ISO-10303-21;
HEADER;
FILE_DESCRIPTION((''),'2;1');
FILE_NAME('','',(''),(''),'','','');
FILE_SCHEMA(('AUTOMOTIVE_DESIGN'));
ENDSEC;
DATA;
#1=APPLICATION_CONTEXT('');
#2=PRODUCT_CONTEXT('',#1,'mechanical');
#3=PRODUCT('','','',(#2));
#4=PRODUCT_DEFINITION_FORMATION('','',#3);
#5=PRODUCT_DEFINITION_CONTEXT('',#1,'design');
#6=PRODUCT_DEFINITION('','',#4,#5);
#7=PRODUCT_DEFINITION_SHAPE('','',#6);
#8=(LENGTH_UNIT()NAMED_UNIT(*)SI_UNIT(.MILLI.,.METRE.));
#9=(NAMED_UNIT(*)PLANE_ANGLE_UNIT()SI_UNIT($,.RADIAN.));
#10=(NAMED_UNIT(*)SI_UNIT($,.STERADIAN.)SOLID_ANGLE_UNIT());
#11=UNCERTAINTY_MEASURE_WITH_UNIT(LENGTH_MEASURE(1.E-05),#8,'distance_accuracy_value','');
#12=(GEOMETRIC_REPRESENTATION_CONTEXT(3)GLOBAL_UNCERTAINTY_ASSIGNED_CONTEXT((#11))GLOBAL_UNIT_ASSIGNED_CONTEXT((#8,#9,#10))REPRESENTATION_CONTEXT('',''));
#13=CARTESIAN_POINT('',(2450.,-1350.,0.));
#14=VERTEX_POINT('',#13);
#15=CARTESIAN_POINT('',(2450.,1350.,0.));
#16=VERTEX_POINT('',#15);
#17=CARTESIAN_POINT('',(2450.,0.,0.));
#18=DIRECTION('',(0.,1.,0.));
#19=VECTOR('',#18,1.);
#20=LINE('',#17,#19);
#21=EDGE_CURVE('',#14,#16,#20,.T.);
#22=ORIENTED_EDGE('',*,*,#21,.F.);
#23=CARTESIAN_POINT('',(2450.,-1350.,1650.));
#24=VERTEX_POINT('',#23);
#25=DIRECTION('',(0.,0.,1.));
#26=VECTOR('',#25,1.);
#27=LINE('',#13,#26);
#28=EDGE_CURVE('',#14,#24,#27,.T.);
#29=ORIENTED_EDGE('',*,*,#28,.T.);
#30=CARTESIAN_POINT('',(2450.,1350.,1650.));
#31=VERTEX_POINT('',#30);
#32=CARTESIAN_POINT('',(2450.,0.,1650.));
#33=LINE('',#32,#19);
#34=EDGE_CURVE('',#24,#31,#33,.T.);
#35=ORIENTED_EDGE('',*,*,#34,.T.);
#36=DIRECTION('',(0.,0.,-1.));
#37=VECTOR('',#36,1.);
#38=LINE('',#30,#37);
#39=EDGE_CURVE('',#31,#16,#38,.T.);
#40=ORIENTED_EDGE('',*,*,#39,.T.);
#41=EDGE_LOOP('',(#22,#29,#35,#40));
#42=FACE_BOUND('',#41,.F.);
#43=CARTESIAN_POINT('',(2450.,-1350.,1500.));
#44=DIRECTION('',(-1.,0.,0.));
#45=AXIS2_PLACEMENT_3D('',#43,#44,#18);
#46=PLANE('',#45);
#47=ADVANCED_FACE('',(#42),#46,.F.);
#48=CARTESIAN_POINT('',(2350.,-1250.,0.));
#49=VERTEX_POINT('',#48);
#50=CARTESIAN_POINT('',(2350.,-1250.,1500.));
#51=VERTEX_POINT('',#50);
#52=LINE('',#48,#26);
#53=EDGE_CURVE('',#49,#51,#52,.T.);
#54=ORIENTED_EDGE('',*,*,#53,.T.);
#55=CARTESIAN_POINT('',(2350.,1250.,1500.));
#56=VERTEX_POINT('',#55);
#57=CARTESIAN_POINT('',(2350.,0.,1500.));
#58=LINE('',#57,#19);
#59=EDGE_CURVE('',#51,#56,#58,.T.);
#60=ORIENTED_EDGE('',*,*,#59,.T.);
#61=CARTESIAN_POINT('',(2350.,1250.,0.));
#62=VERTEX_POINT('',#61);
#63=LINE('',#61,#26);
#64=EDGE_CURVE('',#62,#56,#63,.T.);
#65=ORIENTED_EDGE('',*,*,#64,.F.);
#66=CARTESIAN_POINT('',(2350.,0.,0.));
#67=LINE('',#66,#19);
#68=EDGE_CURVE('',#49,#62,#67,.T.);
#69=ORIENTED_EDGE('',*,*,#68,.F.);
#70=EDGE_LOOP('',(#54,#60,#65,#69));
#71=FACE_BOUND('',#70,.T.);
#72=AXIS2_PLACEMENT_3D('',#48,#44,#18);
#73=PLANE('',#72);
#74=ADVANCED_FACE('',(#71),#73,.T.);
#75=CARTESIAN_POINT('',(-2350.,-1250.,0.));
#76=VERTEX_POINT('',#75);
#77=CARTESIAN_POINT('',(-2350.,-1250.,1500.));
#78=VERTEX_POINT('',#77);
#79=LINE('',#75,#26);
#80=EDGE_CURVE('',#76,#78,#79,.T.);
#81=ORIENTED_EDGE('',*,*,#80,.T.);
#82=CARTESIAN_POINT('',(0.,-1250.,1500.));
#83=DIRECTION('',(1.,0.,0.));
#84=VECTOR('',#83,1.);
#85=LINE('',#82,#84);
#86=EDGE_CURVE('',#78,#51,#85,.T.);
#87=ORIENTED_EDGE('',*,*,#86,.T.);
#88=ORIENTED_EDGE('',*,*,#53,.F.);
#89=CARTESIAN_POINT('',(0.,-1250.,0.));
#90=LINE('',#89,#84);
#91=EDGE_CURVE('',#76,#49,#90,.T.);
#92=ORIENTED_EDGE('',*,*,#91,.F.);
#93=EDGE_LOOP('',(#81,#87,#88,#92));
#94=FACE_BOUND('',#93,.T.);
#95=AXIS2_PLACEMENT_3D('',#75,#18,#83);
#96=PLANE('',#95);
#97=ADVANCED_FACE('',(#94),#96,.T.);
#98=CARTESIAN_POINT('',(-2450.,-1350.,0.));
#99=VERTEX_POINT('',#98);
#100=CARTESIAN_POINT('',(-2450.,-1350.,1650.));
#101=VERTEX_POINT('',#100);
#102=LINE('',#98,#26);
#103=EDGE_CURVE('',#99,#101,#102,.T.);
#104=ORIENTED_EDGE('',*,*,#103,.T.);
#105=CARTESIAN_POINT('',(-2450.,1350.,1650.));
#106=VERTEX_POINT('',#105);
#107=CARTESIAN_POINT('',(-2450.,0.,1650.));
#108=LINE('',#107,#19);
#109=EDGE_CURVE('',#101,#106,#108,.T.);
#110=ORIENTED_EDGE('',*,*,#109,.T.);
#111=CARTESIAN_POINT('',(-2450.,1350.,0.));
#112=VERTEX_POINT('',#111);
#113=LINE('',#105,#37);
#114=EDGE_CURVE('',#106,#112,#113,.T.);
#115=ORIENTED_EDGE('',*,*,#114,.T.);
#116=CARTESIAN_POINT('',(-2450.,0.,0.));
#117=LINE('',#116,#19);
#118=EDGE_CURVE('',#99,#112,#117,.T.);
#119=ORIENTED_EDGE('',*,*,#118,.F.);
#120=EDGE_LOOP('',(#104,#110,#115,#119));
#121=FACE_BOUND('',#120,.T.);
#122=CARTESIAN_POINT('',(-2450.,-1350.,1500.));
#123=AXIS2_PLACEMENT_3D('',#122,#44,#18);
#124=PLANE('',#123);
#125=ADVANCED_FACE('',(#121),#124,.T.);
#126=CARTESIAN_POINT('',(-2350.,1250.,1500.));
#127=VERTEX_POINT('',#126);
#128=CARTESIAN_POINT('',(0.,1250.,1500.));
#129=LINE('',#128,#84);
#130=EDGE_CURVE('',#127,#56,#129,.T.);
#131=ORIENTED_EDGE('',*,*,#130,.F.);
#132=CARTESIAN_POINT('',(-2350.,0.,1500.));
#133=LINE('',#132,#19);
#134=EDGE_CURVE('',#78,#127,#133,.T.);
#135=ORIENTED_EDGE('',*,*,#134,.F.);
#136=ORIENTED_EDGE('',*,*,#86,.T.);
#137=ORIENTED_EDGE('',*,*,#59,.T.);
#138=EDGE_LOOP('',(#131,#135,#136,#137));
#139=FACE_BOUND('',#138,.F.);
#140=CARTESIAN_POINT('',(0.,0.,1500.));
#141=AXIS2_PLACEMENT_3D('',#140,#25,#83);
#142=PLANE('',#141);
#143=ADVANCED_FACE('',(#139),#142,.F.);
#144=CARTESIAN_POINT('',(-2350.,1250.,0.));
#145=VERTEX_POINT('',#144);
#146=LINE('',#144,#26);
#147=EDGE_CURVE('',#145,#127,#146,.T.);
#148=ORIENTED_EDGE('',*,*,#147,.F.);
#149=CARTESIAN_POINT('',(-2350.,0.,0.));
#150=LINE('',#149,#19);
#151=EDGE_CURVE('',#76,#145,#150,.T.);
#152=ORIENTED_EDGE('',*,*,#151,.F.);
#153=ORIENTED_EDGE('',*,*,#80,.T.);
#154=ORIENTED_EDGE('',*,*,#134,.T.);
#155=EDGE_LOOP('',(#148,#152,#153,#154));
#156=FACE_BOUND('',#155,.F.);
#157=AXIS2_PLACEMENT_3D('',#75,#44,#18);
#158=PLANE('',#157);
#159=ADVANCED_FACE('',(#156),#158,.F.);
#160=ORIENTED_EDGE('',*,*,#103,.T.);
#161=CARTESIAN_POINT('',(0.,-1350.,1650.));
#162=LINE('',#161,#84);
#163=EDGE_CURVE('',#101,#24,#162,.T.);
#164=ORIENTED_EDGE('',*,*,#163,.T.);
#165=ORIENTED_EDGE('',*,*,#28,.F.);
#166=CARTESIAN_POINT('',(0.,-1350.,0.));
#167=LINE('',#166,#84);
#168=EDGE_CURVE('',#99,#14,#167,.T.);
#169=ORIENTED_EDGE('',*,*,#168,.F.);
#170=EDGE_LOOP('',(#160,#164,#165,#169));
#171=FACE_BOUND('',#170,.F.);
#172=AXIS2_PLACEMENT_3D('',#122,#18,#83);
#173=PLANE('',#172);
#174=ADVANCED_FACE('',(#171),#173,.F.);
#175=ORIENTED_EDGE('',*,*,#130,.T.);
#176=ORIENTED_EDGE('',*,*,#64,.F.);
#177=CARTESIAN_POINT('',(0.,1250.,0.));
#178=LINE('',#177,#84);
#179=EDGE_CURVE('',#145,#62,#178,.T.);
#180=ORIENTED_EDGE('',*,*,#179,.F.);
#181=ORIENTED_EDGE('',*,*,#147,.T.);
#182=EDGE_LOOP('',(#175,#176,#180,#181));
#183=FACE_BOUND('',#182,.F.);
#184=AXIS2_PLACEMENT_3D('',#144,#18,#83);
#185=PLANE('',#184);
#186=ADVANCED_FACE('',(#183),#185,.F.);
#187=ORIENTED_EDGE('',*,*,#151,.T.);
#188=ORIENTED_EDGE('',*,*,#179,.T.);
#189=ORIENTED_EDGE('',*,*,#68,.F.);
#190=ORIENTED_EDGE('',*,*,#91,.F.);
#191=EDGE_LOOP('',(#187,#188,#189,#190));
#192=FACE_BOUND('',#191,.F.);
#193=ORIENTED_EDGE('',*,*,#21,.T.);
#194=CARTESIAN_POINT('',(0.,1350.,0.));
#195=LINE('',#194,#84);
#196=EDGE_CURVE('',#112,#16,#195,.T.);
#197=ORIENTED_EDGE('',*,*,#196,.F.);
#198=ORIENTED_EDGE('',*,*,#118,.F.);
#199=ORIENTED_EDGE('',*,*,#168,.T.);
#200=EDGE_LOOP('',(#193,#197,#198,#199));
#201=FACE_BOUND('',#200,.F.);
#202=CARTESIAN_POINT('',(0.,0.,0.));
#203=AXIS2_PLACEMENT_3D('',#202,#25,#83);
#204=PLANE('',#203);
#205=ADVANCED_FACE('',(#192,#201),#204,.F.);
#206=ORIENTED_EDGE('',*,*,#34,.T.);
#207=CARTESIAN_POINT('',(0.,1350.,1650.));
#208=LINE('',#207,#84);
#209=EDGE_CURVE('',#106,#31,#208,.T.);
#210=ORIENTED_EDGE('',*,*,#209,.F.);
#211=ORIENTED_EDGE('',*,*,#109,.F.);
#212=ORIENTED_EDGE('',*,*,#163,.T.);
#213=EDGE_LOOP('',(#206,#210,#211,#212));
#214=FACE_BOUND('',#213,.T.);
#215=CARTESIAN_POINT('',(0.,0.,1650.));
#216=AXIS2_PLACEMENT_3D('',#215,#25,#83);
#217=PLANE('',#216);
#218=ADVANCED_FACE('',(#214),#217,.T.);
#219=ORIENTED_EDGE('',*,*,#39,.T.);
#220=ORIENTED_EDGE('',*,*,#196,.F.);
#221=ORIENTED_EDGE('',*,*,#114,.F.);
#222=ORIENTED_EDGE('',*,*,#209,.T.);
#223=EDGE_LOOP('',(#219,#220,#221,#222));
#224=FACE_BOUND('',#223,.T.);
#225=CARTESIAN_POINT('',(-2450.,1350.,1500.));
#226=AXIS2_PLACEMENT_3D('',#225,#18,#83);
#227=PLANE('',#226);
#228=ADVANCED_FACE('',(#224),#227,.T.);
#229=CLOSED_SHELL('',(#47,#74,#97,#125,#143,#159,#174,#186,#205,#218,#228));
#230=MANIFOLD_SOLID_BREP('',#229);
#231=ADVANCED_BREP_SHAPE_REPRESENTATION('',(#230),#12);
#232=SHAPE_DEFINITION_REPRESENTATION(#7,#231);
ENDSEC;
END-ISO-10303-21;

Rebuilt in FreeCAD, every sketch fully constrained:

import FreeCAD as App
import Part
import Sketcher

V = App.Vector

doc = App.newDocument("Part")
body = doc.addObject("PartDesign::Body", "Body")

# Sketch on XY plane
sketch1 = doc.addObject("Sketcher::SketchObject", "Sketch")
body.addObject(sketch1)
sketch1.AttachmentSupport = (doc.XY_Plane, [""])
sketch1.MapMode = "FlatFace"
sketch1.addGeometry(Part.LineSegment(V(-2450, 1350, 0), V(-2450, -1350, 0)), False)
sketch1.addGeometry(Part.LineSegment(V(-2450, -1350, 0), V(2450, -1350, 0)), False)
sketch1.addGeometry(Part.LineSegment(V(2450, -1350, 0), V(2450, 1350, 0)), False)
sketch1.addGeometry(Part.LineSegment(V(2450, 1350, 0), V(-2450, 1350, 0)), False)
sketch1.addGeometry(Part.LineSegment(V(2350, -1250, 0), V(-2350, -1250, 0)), False)
sketch1.addGeometry(Part.LineSegment(V(-2350, -1250, 0), V(-2350, 1250, 0)), False)
sketch1.addGeometry(Part.LineSegment(V(-2350, 1250, 0), V(2350, 1250, 0)), False)
sketch1.addGeometry(Part.LineSegment(V(2350, 1250, 0), V(2350, -1250, 0)), False)
sketch1.addConstraint(Sketcher.Constraint("Coincident", 0, 2, 1, 1))
sketch1.addConstraint(Sketcher.Constraint("Coincident", 1, 2, 2, 1))
sketch1.addConstraint(Sketcher.Constraint("Coincident", 2, 2, 3, 1))
sketch1.addConstraint(Sketcher.Constraint("Coincident", 3, 2, 0, 1))
sketch1.addConstraint(Sketcher.Constraint("Coincident", 4, 2, 5, 1))
sketch1.addConstraint(Sketcher.Constraint("Coincident", 5, 2, 6, 1))
sketch1.addConstraint(Sketcher.Constraint("Coincident", 6, 2, 7, 1))
sketch1.addConstraint(Sketcher.Constraint("Coincident", 7, 2, 4, 1))
sketch1.addConstraint(Sketcher.Constraint("Vertical", 0))
sketch1.addConstraint(Sketcher.Constraint("Horizontal", 1))
sketch1.addConstraint(Sketcher.Constraint("Vertical", 2))
sketch1.addConstraint(Sketcher.Constraint("Horizontal", 3))
sketch1.addConstraint(Sketcher.Constraint("Horizontal", 4))
sketch1.addConstraint(Sketcher.Constraint("Vertical", 5))
sketch1.addConstraint(Sketcher.Constraint("Horizontal", 6))
sketch1.addConstraint(Sketcher.Constraint("Vertical", 7))
sketch1.addConstraint(Sketcher.Constraint("Symmetric", 0, 2, 2, 2, -1, 1))
sketch1.addConstraint(Sketcher.Constraint("Symmetric", 4, 2, 6, 2, -1, 1))
sketch1.addConstraint(Sketcher.Constraint("DistanceX", 1, 1, 1, 2, 4900.0))
sketch1.addConstraint(Sketcher.Constraint("DistanceX", 4, 2, 4, 1, 4700.0))
sketch1.addConstraint(Sketcher.Constraint("DistanceY", 0, 2, 0, 1, 2700.0))
sketch1.addConstraint(Sketcher.Constraint("DistanceY", 5, 1, 5, 2, 2500.0))
pad1 = doc.addObject("PartDesign::Pad", "Pad")
body.addObject(pad1)
pad1.Profile = sketch1
pad1.Length = 1500

# Sketch on XY plane
sketch2 = doc.addObject("Sketcher::SketchObject", "Sketch001")
body.addObject(sketch2)
sketch2.AttachmentSupport = (doc.XY_Plane, [""])
sketch2.MapMode = "FlatFace"
sketch2.AttachmentOffset = App.Placement(V(0, 0, 1500), App.Rotation())
sketch2.addGeometry(Part.LineSegment(V(-2450, 1350, 0), V(-2450, -1350, 0)), False)
sketch2.addGeometry(Part.LineSegment(V(-2450, -1350, 0), V(2450, -1350, 0)), False)
sketch2.addGeometry(Part.LineSegment(V(2450, -1350, 0), V(2450, 1350, 0)), False)
sketch2.addGeometry(Part.LineSegment(V(2450, 1350, 0), V(-2450, 1350, 0)), False)
sketch2.addConstraint(Sketcher.Constraint("Coincident", 0, 2, 1, 1))
sketch2.addConstraint(Sketcher.Constraint("Coincident", 1, 2, 2, 1))
sketch2.addConstraint(Sketcher.Constraint("Coincident", 2, 2, 3, 1))
sketch2.addConstraint(Sketcher.Constraint("Coincident", 3, 2, 0, 1))
sketch2.addConstraint(Sketcher.Constraint("Vertical", 0))
sketch2.addConstraint(Sketcher.Constraint("Horizontal", 1))
sketch2.addConstraint(Sketcher.Constraint("Vertical", 2))
sketch2.addConstraint(Sketcher.Constraint("Horizontal", 3))
sketch2.addConstraint(Sketcher.Constraint("Symmetric", 0, 2, 2, 2, -1, 1))
sketch2.addConstraint(Sketcher.Constraint("DistanceX", 1, 1, 1, 2, 4900.0))
sketch2.addConstraint(Sketcher.Constraint("DistanceY", 0, 2, 0, 1, 2700.0))
pad2 = doc.addObject("PartDesign::Pad", "Pad001")
body.addObject(pad2)
pad2.Profile = sketch2
pad2.Length = 150

doc.recompute()
